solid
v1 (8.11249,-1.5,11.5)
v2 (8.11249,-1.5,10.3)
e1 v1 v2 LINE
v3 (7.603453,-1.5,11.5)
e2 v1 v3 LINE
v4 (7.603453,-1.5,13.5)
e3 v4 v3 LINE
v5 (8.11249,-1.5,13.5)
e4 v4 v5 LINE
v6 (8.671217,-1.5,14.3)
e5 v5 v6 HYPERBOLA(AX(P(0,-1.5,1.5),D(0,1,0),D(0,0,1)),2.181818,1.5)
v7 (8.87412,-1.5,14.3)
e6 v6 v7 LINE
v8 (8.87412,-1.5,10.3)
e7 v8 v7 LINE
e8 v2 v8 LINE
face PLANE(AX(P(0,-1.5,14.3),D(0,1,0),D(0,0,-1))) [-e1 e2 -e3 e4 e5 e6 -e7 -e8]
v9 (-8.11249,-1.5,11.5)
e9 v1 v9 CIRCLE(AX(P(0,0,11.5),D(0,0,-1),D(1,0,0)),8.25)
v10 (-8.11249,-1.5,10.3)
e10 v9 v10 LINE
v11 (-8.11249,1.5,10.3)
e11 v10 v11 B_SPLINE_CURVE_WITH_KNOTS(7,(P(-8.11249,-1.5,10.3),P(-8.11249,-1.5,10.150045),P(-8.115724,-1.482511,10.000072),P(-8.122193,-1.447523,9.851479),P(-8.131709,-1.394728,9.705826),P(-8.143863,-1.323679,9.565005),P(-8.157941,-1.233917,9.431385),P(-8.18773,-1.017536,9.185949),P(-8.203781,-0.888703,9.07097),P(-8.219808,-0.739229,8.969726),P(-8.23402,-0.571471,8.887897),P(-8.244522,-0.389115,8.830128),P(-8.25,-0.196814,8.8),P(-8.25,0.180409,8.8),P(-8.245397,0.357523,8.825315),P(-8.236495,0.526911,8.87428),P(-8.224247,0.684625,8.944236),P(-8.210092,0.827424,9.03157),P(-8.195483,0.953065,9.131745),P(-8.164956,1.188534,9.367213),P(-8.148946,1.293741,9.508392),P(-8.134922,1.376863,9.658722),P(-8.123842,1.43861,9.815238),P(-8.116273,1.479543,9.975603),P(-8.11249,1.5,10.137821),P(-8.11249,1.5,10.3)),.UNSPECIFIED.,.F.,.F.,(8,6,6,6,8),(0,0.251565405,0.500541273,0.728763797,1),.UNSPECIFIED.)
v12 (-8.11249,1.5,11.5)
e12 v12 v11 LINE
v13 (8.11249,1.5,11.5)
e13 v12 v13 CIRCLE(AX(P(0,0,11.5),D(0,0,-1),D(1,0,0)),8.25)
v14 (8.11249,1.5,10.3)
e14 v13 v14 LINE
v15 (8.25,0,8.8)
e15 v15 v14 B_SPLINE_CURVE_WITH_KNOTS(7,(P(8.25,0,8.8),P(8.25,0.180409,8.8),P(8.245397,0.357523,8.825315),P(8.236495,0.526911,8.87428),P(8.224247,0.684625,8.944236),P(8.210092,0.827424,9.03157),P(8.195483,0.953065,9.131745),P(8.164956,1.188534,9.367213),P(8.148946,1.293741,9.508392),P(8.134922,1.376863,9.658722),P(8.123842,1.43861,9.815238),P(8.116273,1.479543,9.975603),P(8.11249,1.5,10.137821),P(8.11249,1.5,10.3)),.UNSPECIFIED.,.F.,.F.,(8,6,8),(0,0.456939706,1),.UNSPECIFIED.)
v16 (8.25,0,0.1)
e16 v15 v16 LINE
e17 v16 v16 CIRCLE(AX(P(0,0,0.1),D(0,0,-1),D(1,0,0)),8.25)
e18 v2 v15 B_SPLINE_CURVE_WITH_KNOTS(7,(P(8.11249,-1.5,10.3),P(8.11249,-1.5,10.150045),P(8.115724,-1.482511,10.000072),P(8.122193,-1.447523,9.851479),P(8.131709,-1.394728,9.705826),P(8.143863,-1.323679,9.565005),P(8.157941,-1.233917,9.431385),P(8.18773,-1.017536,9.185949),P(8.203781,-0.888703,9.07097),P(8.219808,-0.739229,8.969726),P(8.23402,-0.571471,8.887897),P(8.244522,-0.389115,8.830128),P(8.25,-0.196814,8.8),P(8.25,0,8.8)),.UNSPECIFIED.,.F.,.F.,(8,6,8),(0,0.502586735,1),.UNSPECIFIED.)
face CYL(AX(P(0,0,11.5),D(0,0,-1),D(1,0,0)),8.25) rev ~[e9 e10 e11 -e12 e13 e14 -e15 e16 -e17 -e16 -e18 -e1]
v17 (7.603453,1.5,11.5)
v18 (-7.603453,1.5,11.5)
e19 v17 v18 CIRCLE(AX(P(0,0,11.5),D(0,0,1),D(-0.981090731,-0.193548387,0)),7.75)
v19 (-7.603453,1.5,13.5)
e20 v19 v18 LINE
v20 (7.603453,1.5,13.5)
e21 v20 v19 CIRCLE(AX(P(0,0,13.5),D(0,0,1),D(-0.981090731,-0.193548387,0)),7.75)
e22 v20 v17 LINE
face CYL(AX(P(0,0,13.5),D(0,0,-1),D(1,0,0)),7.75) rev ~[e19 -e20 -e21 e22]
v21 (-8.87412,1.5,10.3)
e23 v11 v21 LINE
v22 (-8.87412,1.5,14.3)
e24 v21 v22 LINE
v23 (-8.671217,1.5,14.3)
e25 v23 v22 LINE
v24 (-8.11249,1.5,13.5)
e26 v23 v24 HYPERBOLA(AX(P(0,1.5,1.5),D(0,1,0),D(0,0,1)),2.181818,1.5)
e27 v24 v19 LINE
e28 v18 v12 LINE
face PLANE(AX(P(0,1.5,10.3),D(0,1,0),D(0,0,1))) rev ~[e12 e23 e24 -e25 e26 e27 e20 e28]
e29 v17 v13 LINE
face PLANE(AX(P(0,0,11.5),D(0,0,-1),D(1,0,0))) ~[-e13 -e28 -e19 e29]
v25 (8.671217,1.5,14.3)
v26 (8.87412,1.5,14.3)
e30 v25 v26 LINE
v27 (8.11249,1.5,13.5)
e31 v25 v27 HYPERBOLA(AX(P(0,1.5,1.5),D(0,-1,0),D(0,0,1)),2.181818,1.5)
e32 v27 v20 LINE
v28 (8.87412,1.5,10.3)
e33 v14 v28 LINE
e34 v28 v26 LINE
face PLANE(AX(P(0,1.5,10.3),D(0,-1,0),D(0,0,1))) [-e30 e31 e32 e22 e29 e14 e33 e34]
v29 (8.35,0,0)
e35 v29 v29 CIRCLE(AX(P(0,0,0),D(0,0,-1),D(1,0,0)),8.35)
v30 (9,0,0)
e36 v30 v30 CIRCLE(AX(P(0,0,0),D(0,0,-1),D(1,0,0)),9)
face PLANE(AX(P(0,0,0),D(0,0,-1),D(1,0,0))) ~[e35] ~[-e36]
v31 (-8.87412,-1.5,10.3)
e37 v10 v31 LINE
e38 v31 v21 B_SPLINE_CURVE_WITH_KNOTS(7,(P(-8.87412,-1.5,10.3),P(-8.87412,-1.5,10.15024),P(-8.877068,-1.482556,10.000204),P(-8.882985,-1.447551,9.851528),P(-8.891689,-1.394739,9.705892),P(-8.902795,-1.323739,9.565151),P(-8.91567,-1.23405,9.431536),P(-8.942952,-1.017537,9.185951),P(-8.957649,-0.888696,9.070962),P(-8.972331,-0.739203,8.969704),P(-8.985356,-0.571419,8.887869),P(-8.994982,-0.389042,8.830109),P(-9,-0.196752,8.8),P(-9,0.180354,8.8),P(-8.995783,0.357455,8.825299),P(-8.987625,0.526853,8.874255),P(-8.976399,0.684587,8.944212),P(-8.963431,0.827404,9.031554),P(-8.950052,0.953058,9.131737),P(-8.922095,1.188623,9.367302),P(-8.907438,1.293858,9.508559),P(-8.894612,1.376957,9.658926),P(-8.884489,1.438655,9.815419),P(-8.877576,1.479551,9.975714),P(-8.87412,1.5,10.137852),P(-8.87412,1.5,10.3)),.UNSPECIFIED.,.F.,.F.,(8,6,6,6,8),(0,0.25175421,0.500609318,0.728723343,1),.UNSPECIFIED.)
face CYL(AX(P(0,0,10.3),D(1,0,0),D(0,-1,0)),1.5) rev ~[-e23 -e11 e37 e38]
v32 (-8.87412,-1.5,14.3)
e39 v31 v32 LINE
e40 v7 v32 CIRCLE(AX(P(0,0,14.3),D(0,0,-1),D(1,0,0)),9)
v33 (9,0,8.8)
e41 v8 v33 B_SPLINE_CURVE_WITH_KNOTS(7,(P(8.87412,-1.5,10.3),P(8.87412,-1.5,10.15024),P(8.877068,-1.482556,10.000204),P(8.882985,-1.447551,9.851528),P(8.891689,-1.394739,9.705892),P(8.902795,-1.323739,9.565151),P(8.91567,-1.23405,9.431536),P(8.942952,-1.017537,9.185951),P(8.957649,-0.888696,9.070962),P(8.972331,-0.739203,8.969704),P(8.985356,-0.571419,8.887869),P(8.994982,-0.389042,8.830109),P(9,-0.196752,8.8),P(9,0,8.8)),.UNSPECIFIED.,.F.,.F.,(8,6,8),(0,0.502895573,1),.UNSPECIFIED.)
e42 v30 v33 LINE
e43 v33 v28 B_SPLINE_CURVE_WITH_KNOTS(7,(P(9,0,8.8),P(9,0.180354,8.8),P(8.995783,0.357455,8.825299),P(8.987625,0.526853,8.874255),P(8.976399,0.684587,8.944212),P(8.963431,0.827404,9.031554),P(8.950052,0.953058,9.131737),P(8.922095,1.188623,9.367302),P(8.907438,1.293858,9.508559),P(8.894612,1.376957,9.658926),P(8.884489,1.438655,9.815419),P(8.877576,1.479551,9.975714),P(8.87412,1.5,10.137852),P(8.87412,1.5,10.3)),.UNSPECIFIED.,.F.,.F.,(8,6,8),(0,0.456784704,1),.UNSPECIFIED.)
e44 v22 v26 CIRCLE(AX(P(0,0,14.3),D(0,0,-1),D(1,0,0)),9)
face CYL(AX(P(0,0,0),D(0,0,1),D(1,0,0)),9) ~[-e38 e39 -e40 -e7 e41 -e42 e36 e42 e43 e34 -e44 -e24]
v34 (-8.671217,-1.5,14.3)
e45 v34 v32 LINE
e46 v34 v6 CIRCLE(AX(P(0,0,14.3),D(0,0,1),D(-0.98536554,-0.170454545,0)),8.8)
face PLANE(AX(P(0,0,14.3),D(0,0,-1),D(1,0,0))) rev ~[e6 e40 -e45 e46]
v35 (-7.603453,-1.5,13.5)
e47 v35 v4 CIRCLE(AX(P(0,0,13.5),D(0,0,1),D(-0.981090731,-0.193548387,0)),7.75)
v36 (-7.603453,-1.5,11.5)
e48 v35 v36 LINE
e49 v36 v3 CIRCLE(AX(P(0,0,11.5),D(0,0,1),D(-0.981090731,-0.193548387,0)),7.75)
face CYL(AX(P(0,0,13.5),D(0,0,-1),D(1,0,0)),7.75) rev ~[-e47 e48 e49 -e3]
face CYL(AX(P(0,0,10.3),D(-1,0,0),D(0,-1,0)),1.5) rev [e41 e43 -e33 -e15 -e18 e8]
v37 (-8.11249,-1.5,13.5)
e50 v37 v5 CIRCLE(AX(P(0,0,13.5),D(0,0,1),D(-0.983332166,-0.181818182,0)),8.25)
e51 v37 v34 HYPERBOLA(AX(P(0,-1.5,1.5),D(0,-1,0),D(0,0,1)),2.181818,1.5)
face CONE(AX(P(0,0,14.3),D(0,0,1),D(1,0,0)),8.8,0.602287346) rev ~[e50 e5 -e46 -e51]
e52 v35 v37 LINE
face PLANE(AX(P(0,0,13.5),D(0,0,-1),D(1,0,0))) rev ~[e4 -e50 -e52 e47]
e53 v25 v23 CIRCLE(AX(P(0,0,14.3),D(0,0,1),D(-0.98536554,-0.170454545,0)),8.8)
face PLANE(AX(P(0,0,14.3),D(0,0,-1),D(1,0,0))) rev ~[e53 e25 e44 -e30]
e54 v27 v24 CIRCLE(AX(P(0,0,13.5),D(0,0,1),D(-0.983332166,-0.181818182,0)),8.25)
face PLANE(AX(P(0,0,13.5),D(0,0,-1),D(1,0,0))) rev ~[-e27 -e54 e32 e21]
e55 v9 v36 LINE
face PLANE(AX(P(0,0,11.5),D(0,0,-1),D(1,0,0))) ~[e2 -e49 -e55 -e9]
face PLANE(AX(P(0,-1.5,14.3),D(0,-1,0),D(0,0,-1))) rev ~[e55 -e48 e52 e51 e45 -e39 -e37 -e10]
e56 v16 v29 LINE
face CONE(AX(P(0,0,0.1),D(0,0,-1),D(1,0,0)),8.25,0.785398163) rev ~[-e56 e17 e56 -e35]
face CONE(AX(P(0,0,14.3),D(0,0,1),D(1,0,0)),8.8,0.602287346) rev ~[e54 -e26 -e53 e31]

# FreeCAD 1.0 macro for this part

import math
import FreeCAD as App
import Part
import Sketcher
Q = App.Units.Quantity

doc = App.newDocument("Part")
body = doc.addObject("PartDesign::Body", "Body")

sketch1 = doc.addObject("Sketcher::SketchObject", "Sketch")
body.addObject(sketch1)
sketch1.AttachmentSupport = (doc.XZ_Plane, [""])
sketch1.MapMode = "FlatFace"
sketch1.addGeometry([
    Part.LineSegment(App.Vector(8.25, 11.5, 0), App.Vector(8.25, 0.1, 0)),
    Part.LineSegment(App.Vector(8.25, 0.1, 0), App.Vector(8.35, 0, 0)),
    Part.LineSegment(App.Vector(8.35, 0, 0), App.Vector(9, 0, 0)),
    Part.LineSegment(App.Vector(9, 0, 0), App.Vector(9, 14.3, 0)),
    Part.LineSegment(App.Vector(9, 14.3, 0), App.Vector(8.8, 14.3, 0)),
    Part.LineSegment(App.Vector(8.8, 14.3, 0), App.Vector(8.25, 13.5, 0)),
    Part.LineSegment(App.Vector(8.25, 13.5, 0), App.Vector(7.75, 13.5, 0)),
    Part.LineSegment(App.Vector(7.75, 13.5, 0), App.Vector(7.75, 11.5, 0)),
    Part.LineSegment(App.Vector(7.75, 11.5, 0), App.Vector(8.25, 11.5, 0)),
], False)
sketch1.addConstraint([
    Sketcher.Constraint("Coincident", 0, 2, 1, 1),
    Sketcher.Constraint("Coincident", 1, 2, 2, 1),
    Sketcher.Constraint("Coincident", 2, 2, 3, 1),
    Sketcher.Constraint("Coincident", 3, 2, 4, 1),
    Sketcher.Constraint("Coincident", 4, 2, 5, 1),
    Sketcher.Constraint("Coincident", 5, 2, 6, 1),
    Sketcher.Constraint("Coincident", 6, 2, 7, 1),
    Sketcher.Constraint("Coincident", 7, 2, 8, 1),
    Sketcher.Constraint("Coincident", 8, 2, 0, 1),
    Sketcher.Constraint("Vertical", 0),
    Sketcher.Constraint("Horizontal", 2),
    Sketcher.Constraint("Vertical", 3),
    Sketcher.Constraint("Horizontal", 4),
    Sketcher.Constraint("Horizontal", 6),
    Sketcher.Constraint("Vertical", 7),
    Sketcher.Constraint("Horizontal", 8),
    Sketcher.Constraint("PointOnObject", 1, 2, -1),
    Sketcher.Constraint("Vertical", 0, 2, 5, 2),
    Sketcher.Constraint("DistanceY", 7, 2, 7, 1, Q("2 mm")),
    Sketcher.Constraint("Angle", 1, Q("-45 deg")),
    Sketcher.Constraint("DistanceX", 4, 2, 4, 1, Q("0.2 mm")),
    Sketcher.Constraint("DistanceX", 6, 2, 6, 1, Q("0.5 mm")),
    Sketcher.Constraint("DistanceY", 0, 2, 0, 1, Q("11.4 mm")),
    Sketcher.Constraint("DistanceY", 3, 1, 3, 2, Q("14.3 mm")),
    Sketcher.Constraint("DistanceX", -1, 1, 2, 2, Q("9 mm")),
    Sketcher.Constraint("DistanceX", 2, 1, 2, 2, Q("0.65 mm")),
    Sketcher.Constraint("DistanceY", -1, 1, 0, 2, Q("0.1 mm")),
])
revolution = doc.addObject("PartDesign::Revolution", "Revolution")
body.addObject(revolution)
revolution.Profile = sketch1
revolution.ReferenceAxis = (sketch1, ["V_Axis"])
revolution.Angle = 360

sketch2 = doc.addObject("Sketcher::SketchObject", "Sketch001")
body.addObject(sketch2)
sketch2.AttachmentSupport = (doc.YZ_Plane, [""])
sketch2.MapMode = "FlatFace"
sketch2.addGeometry([
    Part.LineSegment(App.Vector(-1.5, 14.3, 0), App.Vector(-1.5, 10.3, 0)),
    Part.ArcOfCircle(Part.Circle(App.Vector(0, 10.3, 0), App.Vector(0, 0, 1), 1.5), math.radians(180), math.radians(360)),
    Part.LineSegment(App.Vector(1.5, 10.3, 0), App.Vector(1.5, 14.3, 0)),
    Part.LineSegment(App.Vector(1.5, 14.3, 0), App.Vector(-1.5, 14.3, 0)),
], False)
sketch2.addConstraint([
    Sketcher.Constraint("Tangent", 0, 2, 1, 1),
    Sketcher.Constraint("Tangent", 1, 2, 2, 1),
    Sketcher.Constraint("Coincident", 2, 2, 3, 1),
    Sketcher.Constraint("Coincident", 3, 2, 0, 1),
    Sketcher.Constraint("Vertical", 0),
    Sketcher.Constraint("Vertical", 2),
    Sketcher.Constraint("Horizontal", 3),
    Sketcher.Constraint("PointOnObject", 1, 3, -2),
    Sketcher.Constraint("Radius", 1, Q("1.5 mm")),
    Sketcher.Constraint("DistanceY", 0, 2, 0, 1, Q("4 mm")),
    Sketcher.Constraint("DistanceY", -1, 1, 1, 3, Q("10.3 mm")),
])
pocket1 = doc.addObject("PartDesign::Pocket", "Pocket")
body.addObject(pocket1)
pocket1.Profile = sketch2
pocket1.Type = "ThroughAll"
pocket1.Midplane = True

doc.recompute()
